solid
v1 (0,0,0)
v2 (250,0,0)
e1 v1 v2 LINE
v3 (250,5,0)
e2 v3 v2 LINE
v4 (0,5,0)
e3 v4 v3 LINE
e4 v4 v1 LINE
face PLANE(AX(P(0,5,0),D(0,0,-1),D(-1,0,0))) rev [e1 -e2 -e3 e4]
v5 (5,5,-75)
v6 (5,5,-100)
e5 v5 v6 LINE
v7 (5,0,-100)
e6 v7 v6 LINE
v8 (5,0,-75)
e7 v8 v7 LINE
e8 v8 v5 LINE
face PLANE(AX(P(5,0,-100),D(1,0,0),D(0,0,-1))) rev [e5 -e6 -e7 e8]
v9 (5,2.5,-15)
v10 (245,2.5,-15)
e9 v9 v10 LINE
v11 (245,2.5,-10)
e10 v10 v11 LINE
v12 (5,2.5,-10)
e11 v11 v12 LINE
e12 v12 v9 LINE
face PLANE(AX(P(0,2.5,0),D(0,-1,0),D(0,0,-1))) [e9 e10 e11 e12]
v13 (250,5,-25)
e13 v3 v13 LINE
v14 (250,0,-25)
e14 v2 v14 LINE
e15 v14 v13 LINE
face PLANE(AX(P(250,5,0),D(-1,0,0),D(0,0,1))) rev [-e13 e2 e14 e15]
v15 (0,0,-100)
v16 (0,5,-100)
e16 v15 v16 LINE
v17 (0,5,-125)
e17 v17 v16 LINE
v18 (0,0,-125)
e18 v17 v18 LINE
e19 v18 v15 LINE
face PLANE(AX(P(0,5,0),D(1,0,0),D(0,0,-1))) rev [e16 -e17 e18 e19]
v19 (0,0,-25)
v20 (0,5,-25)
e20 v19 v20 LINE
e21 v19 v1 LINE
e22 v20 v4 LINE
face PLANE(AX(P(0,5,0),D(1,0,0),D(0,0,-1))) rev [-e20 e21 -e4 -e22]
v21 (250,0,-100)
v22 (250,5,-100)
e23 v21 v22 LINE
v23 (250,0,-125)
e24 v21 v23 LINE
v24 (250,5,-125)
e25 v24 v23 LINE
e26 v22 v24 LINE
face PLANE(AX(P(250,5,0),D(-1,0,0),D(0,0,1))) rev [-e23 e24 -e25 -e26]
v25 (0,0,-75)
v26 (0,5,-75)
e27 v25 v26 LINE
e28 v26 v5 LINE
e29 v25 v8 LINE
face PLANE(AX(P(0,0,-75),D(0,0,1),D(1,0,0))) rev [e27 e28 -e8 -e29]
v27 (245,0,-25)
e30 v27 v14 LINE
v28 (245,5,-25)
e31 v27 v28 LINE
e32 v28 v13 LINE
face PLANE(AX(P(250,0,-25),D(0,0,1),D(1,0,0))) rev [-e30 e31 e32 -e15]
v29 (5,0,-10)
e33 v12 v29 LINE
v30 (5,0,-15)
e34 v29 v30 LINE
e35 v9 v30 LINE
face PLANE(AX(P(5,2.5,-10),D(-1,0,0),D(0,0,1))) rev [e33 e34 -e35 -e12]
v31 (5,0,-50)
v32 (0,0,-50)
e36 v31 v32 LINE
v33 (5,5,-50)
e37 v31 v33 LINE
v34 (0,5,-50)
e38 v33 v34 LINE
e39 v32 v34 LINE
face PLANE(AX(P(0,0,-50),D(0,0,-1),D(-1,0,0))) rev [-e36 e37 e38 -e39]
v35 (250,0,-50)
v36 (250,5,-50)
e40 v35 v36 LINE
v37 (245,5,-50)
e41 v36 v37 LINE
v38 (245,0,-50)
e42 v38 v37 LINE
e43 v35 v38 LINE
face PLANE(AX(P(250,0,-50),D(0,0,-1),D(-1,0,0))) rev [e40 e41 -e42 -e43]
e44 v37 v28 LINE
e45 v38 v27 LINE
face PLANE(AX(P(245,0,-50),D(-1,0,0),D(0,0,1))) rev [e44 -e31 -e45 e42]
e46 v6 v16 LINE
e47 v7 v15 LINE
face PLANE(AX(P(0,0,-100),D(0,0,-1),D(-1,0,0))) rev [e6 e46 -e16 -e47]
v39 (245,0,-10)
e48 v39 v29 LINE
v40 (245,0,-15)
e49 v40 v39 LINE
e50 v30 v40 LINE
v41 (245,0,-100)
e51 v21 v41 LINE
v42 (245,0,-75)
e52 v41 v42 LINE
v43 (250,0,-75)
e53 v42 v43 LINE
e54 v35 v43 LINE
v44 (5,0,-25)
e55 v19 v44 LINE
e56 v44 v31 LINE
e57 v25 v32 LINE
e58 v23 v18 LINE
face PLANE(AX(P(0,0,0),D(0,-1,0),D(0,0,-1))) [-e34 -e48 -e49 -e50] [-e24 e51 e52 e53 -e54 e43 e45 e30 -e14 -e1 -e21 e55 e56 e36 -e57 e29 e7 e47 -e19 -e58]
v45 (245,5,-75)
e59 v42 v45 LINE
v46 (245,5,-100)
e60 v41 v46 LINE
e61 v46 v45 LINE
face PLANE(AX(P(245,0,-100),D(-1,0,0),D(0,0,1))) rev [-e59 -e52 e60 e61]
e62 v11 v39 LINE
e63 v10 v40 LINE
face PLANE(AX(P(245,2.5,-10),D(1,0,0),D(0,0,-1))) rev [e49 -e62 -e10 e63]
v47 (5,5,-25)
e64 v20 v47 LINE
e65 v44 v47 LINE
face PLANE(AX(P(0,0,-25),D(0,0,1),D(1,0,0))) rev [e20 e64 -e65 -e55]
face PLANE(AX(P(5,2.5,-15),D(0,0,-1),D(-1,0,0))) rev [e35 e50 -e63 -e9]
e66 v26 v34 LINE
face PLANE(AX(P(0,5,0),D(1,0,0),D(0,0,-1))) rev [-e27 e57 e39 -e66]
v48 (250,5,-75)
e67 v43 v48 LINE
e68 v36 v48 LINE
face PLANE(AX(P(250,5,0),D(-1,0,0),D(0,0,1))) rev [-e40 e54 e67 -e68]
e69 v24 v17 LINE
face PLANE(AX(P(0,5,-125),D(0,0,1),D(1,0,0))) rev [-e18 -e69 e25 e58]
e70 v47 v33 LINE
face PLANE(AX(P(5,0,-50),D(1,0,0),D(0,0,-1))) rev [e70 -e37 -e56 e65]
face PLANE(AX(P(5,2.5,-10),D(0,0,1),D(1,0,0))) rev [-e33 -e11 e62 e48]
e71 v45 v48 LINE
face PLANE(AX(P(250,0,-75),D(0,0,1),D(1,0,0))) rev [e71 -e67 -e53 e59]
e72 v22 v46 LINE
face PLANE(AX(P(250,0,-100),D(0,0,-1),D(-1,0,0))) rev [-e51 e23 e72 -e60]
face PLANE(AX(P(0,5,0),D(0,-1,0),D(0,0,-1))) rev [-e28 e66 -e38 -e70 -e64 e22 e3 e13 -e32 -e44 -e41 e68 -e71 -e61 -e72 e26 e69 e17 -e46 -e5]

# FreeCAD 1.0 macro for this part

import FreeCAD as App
import Part
import Sketcher
from FreeCAD import Vector
Q = App.Units.Quantity

doc = App.newDocument("Part")
params = doc.addObject("Spreadsheet::Sheet", "Params")
for row, (alias, value) in enumerate([
    ("sketch1_width", "250 mm"),
    ("sketch1_height", "125 mm"),
    ("pad1_length", "5 mm"),
    ("sketch2_width", "5 mm"),
    ("sketch2_height", "25 mm"),
    ("sketch3_width", "240 mm"),
    ("sketch3_height", "5 mm"),
    ("pocket2_length", "2.5 mm"),
], start=1):
    params.set(f"A{row}", alias)
    params.set(f"B{row}", "=" + value)
    params.setAlias(f"B{row}", alias)

body = doc.addObject("PartDesign::Body", "Body")

# Sketch on XZ plane
sketch1 = body.newObject("Sketcher::SketchObject", "Sketch")
sketch1.AttachmentSupport = (doc.getObject("XZ_Plane"), [""])
sketch1.MapMode = "FlatFace"
sketch1.addGeometry([
    Part.LineSegment(Vector(0, -125, 0), Vector(0, 0, 0)),
    Part.LineSegment(Vector(0, 0, 0), Vector(250, 0, 0)),
    Part.LineSegment(Vector(250, 0, 0), Vector(250, -125, 0)),
    Part.LineSegment(Vector(250, -125, 0), Vector(0, -125, 0)),
], False)
sketch1.addConstraint([
    Sketcher.Constraint("Coincident", 0, 2, 1, 1),
    Sketcher.Constraint("Coincident", 1, 2, 2, 1),
    Sketcher.Constraint("Coincident", 2, 2, 3, 1),
    Sketcher.Constraint("Coincident", 3, 2, 0, 1),
    Sketcher.Constraint("Vertical", 0),
    Sketcher.Constraint("Horizontal", 1),
    Sketcher.Constraint("Vertical", 2),
    Sketcher.Constraint("Horizontal", 3),
    Sketcher.Constraint("Coincident", 0, 2, -1, 1),
    Sketcher.Constraint("DistanceX", 1, 1, 1, 2, Q("250 mm")),
    Sketcher.Constraint("DistanceY", 0, 1, 0, 2, Q("125 mm")),
])
sketch1.setExpression("Constraints[9]", "Params.sketch1_width")
sketch1.setExpression("Constraints[10]", "Params.sketch1_height")
pad1 = body.newObject("PartDesign::Pad", "Pad")
pad1.Profile = sketch1
pad1.setExpression("Length", "Params.pad1_length")
pad1.Reversed = True

# Sketch on XZ plane
sketch2 = body.newObject("Sketcher::SketchObject", "Sketch001")
sketch2.AttachmentSupport = (doc.getObject("XZ_Plane"), [""])
sketch2.MapMode = "FlatFace"
sketch2.AttachmentOffset = App.Placement(Vector(0, 0, -5), App.Rotation())
sketch2.addGeometry([
    Part.LineSegment(Vector(0, -100, 0), Vector(0, -75, 0)),  # 0
    Part.LineSegment(Vector(0, -75, 0), Vector(5, -75, 0)),  # 1
    Part.LineSegment(Vector(5, -75, 0), Vector(5, -100, 0)),  # 2
    Part.LineSegment(Vector(5, -100, 0), Vector(0, -100, 0)),  # 3
    Part.LineSegment(Vector(245, -50, 0), Vector(245, -25, 0)),  # 4
    Part.LineSegment(Vector(245, -25, 0), Vector(250, -25, 0)),  # 5
    Part.LineSegment(Vector(250, -25, 0), Vector(250, -50, 0)),  # 6
    Part.LineSegment(Vector(250, -50, 0), Vector(245, -50, 0)),  # 7
    Part.LineSegment(Vector(0, -50, 0), Vector(0, -25, 0)),  # 8
    Part.LineSegment(Vector(0, -25, 0), Vector(5, -25, 0)),  # 9
    Part.LineSegment(Vector(5, -25, 0), Vector(5, -50, 0)),  # 10
    Part.LineSegment(Vector(5, -50, 0), Vector(0, -50, 0)),  # 11
    Part.LineSegment(Vector(245, -100, 0), Vector(245, -75, 0)),  # 12
    Part.LineSegment(Vector(245, -75, 0), Vector(250, -75, 0)),  # 13
    Part.LineSegment(Vector(250, -75, 0), Vector(250, -100, 0)),  # 14
    Part.LineSegment(Vector(250, -100, 0), Vector(245, -100, 0)),  # 15
], False)
sketch2.addConstraint([
    Sketcher.Constraint("Coincident", 0, 2, 1, 1),
    Sketcher.Constraint("Coincident", 1, 2, 2, 1),
    Sketcher.Constraint("Coincident", 2, 2, 3, 1),
    Sketcher.Constraint("Coincident", 3, 2, 0, 1),
    Sketcher.Constraint("Coincident", 4, 2, 5, 1),
    Sketcher.Constraint("Coincident", 5, 2, 6, 1),
    Sketcher.Constraint("Coincident", 6, 2, 7, 1),
    Sketcher.Constraint("Coincident", 7, 2, 4, 1),
    Sketcher.Constraint("Coincident", 8, 2, 9, 1),
    Sketcher.Constraint("Coincident", 9, 2, 10, 1),
    Sketcher.Constraint("Coincident", 10, 2, 11, 1),
    Sketcher.Constraint("Coincident", 11, 2, 8, 1),
    Sketcher.Constraint("Coincident", 12, 2, 13, 1),
    Sketcher.Constraint("Coincident", 13, 2, 14, 1),
    Sketcher.Constraint("Coincident", 14, 2, 15, 1),
    Sketcher.Constraint("Coincident", 15, 2, 12, 1),
    Sketcher.Constraint("Vertical", 0),
    Sketcher.Constraint("Horizontal", 1),
    Sketcher.Constraint("Vertical", 2),
    Sketcher.Constraint("Horizontal", 3),
    Sketcher.Constraint("Vertical", 4),
    Sketcher.Constraint("Horizontal", 5),
    Sketcher.Constraint("Vertical", 6),
    Sketcher.Constraint("Horizontal", 7),
    Sketcher.Constraint("Vertical", 8),
    Sketcher.Constraint("Horizontal", 9),
    Sketcher.Constraint("Vertical", 10),
    Sketcher.Constraint("Horizontal", 11),
    Sketcher.Constraint("Vertical", 12),
    Sketcher.Constraint("Horizontal", 13),
    Sketcher.Constraint("Vertical", 14),
    Sketcher.Constraint("Horizontal", 15),
    Sketcher.Constraint("PointOnObject", 0, 2, -2),
    Sketcher.Constraint("PointOnObject", 8, 2, -2),
    Sketcher.Constraint("Horizontal", 5, 2, 8, 2),
    Sketcher.Constraint("Horizontal", 7, 2, 10, 2),
    Sketcher.Constraint("Horizontal", 1, 2, 12, 2),
    Sketcher.Constraint("Horizontal", 3, 2, 14, 2),
    Sketcher.Constraint("Vertical", 2, 2, 9, 2),
    Sketcher.Constraint("Vertical", 7, 2, 12, 2),
    Sketcher.Constraint("Vertical", 6, 2, 13, 2),
    Sketcher.Constraint("Equal", 3, 5),
    Sketcher.Constraint("Equal", 2, 4),
    Sketcher.Constraint("DistanceX", 1, 1, 1, 2, Q("5 mm")),
    Sketcher.Constraint("DistanceY", 0, 1, 0, 2, Q("25 mm")),
    Sketcher.Constraint("DistanceY", 0, 2, -1, 1, Q("75 mm")),
    Sketcher.Constraint("DistanceX", -1, 1, 4, 2, Q("245 mm")),
    Sketcher.Constraint("DistanceY", 4, 2, -1, 1, Q("25 mm")),
])
sketch2.setExpression("Constraints[43]", "Params.sketch2_width")
sketch2.setExpression("Constraints[44]", "Params.sketch2_height")
pocket1 = body.newObject("PartDesign::Pocket", "Pocket")
pocket1.Profile = sketch2
pocket1.Type = "ThroughAll"
pocket1.Reversed = True

# Sketch on XZ plane
sketch3 = body.newObject("Sketcher::SketchObject", "Sketch002")
sketch3.AttachmentSupport = (doc.getObject("XZ_Plane"), [""])
sketch3.MapMode = "FlatFace"
sketch3.addGeometry([
    Part.LineSegment(Vector(5, -10, 0), Vector(5, -15, 0)),
    Part.LineSegment(Vector(5, -15, 0), Vector(245, -15, 0)),
    Part.LineSegment(Vector(245, -15, 0), Vector(245, -10, 0)),
    Part.LineSegment(Vector(245, -10, 0), Vector(5, -10, 0)),
], False)
sketch3.addConstraint([
    Sketcher.Constraint("Coincident", 0, 2, 1, 1),
    Sketcher.Constraint("Coincident", 1, 2, 2, 1),
    Sketcher.Constraint("Coincident", 2, 2, 3, 1),
    Sketcher.Constraint("Coincident", 3, 2, 0, 1),
    Sketcher.Constraint("Vertical", 0),
    Sketcher.Constraint("Horizontal", 1),
    Sketcher.Constraint("Vertical", 2),
    Sketcher.Constraint("Horizontal", 3),
    Sketcher.Constraint("DistanceX", 1, 1, 1, 2, Q("240 mm")),
    Sketcher.Constraint("DistanceY", 0, 2, 0, 1, Q("5 mm")),
    Sketcher.Constraint("DistanceX", -1, 1, 0, 2, Q("5 mm")),
    Sketcher.Constraint("DistanceY", 0, 2, -1, 1, Q("15 mm")),
])
sketch3.setExpression("Constraints[8]", "Params.sketch3_width")
sketch3.setExpression("Constraints[9]", "Params.sketch3_height")
pocket2 = body.newObject("PartDesign::Pocket", "Pocket001")
pocket2.Profile = sketch3
pocket2.setExpression("Length", "Params.pocket2_length")

doc.recompute()
